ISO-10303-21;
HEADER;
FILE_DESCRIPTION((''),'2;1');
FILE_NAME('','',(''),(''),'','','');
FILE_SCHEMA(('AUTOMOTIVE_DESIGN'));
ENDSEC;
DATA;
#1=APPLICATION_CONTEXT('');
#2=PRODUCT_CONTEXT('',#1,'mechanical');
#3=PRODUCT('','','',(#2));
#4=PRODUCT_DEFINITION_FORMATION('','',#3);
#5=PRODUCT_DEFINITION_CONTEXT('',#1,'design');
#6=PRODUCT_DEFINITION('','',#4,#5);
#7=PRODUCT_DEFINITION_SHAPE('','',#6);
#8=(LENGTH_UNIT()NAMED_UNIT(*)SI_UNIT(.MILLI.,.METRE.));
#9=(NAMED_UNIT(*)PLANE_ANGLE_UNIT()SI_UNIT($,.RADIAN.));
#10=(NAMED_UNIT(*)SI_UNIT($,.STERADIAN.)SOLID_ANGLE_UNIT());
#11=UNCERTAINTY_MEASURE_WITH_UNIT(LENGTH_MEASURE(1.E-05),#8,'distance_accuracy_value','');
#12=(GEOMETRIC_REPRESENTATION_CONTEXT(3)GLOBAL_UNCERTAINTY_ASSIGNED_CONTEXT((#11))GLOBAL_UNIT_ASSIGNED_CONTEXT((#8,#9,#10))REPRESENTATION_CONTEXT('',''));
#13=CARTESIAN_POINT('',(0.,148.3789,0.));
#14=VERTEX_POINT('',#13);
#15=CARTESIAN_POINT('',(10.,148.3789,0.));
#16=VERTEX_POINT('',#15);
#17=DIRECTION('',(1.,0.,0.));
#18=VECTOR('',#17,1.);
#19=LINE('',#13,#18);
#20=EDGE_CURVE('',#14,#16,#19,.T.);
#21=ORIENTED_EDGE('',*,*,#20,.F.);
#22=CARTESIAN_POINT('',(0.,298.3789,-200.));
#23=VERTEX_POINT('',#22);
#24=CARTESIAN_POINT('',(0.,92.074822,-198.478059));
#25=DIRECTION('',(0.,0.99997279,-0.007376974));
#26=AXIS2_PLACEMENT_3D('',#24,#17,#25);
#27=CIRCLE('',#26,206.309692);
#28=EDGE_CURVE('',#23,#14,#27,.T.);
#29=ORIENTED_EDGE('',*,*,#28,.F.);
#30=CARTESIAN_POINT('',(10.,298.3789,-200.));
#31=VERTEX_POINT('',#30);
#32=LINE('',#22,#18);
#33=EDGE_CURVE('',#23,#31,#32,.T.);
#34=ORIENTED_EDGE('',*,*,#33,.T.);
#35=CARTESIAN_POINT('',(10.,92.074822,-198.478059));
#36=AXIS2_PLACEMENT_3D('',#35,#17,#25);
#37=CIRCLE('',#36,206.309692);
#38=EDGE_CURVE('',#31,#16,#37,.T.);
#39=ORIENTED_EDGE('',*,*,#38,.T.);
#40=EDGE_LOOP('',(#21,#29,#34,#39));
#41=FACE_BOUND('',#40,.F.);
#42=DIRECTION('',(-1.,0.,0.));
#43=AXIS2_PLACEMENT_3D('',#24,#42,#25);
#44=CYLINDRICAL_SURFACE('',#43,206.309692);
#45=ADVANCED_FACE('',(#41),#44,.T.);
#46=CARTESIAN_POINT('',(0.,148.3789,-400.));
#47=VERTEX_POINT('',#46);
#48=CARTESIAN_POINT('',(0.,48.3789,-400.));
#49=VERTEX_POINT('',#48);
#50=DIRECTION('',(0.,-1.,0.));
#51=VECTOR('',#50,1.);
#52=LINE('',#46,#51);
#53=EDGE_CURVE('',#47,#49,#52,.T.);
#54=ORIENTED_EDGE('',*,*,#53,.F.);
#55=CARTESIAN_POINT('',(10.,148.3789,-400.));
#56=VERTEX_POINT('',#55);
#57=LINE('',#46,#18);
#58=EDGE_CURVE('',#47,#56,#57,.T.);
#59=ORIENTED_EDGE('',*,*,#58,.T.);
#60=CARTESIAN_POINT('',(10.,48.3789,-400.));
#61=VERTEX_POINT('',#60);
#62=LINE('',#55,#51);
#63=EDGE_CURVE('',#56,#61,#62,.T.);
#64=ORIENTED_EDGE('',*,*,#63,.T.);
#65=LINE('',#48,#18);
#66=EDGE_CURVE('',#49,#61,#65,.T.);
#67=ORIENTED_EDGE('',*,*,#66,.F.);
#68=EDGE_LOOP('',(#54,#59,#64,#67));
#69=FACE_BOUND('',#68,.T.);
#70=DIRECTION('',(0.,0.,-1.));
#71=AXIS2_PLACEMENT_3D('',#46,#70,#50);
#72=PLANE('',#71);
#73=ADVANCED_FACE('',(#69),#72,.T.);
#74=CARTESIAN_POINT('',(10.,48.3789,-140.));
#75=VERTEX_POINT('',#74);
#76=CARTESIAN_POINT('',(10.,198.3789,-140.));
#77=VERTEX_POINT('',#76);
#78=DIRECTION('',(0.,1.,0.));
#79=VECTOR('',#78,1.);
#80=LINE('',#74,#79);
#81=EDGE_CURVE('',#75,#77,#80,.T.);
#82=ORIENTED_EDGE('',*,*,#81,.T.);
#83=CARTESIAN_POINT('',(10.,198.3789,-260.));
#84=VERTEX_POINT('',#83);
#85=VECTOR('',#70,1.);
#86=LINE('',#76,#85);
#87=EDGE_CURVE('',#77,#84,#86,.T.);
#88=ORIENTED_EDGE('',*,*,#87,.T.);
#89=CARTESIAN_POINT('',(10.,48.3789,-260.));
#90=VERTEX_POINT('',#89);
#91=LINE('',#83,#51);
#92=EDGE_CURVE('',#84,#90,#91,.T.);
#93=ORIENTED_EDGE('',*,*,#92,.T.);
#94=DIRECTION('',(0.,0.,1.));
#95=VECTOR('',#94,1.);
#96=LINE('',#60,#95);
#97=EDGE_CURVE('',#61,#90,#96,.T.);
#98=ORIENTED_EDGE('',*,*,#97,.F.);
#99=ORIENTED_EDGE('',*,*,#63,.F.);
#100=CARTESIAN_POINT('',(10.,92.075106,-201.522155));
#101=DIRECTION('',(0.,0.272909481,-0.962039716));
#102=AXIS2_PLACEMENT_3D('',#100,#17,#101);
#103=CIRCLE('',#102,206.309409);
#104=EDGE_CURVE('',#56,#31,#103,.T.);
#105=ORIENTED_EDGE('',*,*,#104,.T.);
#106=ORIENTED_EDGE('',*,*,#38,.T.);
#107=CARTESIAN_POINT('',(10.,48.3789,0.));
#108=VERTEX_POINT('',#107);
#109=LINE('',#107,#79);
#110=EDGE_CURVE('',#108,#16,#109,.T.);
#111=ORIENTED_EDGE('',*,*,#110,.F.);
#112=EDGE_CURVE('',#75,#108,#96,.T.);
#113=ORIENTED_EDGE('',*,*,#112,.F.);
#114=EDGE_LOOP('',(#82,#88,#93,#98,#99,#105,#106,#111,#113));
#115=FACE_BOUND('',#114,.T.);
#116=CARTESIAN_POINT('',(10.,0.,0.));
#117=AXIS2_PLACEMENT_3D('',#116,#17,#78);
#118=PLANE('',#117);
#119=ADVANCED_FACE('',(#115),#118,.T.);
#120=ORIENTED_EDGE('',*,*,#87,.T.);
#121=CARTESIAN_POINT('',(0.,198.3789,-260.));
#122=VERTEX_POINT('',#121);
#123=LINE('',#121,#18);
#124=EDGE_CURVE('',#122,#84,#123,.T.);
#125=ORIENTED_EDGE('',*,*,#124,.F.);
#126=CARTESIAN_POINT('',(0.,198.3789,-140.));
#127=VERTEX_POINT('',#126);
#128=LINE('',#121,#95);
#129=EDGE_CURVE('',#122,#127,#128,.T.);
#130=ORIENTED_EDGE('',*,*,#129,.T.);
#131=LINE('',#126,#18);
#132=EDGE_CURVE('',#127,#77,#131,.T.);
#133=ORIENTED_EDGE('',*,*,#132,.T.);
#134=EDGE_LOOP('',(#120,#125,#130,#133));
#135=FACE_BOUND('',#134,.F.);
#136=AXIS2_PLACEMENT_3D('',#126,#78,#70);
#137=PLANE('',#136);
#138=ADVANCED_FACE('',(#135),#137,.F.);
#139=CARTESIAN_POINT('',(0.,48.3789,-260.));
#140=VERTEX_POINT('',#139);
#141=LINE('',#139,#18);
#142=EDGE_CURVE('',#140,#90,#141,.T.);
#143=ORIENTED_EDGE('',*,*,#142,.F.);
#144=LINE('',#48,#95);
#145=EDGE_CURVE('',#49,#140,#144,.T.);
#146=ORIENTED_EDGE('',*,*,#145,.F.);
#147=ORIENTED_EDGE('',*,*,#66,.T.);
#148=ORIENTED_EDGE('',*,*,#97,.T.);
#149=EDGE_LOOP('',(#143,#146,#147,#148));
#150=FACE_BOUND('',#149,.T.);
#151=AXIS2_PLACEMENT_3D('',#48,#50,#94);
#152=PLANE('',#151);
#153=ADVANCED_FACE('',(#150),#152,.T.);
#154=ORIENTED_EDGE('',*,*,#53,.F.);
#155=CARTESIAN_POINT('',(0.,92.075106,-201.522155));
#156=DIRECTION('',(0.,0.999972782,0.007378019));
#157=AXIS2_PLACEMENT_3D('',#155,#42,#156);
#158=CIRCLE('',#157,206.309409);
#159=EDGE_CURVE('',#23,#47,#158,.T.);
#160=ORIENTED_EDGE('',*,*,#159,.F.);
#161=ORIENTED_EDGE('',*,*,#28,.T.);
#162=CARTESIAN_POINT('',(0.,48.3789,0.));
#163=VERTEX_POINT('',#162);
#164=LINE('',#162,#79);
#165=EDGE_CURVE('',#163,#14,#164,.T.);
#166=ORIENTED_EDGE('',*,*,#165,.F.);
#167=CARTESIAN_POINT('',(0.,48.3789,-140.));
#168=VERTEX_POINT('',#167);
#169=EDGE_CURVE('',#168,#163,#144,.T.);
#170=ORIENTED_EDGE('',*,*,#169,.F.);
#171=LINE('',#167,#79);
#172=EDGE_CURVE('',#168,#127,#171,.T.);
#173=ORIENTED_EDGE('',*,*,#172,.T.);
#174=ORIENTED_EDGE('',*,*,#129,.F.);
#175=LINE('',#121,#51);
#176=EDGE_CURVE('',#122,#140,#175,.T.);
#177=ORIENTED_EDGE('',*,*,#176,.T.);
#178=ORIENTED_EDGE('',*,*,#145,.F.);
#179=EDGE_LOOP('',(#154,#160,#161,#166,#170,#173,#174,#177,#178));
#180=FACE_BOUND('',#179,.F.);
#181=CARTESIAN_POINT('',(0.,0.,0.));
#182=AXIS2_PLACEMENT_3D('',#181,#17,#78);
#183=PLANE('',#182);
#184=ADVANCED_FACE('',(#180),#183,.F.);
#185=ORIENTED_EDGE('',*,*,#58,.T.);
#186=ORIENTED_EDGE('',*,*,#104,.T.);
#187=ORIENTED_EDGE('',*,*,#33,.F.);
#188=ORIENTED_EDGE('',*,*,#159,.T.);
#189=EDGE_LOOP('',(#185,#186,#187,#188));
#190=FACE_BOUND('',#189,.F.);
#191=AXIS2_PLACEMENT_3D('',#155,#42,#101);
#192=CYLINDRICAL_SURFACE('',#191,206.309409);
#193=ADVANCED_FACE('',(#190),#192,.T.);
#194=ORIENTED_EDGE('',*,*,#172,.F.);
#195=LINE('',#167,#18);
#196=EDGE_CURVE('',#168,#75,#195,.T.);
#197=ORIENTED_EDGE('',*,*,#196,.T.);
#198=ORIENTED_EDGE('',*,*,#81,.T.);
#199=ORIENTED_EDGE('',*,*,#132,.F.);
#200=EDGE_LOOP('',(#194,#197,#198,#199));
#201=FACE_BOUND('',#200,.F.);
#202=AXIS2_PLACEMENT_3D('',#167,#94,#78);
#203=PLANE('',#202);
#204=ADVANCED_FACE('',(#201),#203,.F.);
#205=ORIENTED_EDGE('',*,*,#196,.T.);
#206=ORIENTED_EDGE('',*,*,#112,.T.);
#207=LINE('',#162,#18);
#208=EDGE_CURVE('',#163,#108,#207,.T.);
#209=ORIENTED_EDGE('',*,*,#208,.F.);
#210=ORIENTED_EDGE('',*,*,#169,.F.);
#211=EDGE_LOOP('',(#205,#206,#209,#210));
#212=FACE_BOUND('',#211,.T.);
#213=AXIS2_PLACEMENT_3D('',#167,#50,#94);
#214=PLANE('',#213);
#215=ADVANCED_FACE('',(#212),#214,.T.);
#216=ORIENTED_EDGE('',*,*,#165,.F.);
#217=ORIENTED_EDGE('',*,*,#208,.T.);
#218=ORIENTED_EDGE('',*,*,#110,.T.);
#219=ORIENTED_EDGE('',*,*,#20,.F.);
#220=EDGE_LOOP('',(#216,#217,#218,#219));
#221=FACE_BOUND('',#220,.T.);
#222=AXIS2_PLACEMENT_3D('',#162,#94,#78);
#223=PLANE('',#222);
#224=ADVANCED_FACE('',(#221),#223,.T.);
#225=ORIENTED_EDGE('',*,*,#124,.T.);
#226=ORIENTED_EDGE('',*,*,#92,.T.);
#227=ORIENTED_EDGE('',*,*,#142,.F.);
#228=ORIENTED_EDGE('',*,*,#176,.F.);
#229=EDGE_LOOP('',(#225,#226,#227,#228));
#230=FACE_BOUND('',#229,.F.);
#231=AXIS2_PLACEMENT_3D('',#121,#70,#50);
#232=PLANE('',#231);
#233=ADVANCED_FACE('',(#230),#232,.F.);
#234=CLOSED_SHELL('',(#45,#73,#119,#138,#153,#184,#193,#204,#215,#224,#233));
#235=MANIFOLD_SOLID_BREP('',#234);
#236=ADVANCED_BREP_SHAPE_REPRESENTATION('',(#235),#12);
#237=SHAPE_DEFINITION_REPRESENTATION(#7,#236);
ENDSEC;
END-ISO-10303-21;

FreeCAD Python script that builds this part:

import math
import FreeCAD as App
import Part
import Sketcher
Q = App.Units.Quantity

doc = App.newDocument("Part")
body = doc.addObject("PartDesign::Body", "Body")

# Sketch on YZ plane
sketch1 = doc.addObject("Sketcher::SketchObject", "Sketch")
body.addObject(sketch1)
sketch1.AttachmentSupport = (doc.YZ_Plane, [""])
sketch1.MapMode = "FlatFace"
sketch1.addGeometry([
    Part.LineSegment(App.Vector(148.3789, 0, 0), App.Vector(48.3789, 0, 0)),  # 0
    Part.LineSegment(App.Vector(48.3789, 0, 0), App.Vector(48.3789, -140, 0)),  # 1
    Part.LineSegment(App.Vector(48.3789, -140, 0), App.Vector(198.3789, -140, 0)),  # 2
    Part.LineSegment(App.Vector(198.3789, -140, 0), App.Vector(198.3789, -260, 0)),  # 3
    Part.LineSegment(App.Vector(198.3789, -260, 0), App.Vector(48.3789, -260, 0)),  # 4
    Part.LineSegment(App.Vector(48.3789, -260, 0), App.Vector(48.3789, -400, 0)),  # 5
    Part.LineSegment(App.Vector(48.3789, -400, 0), App.Vector(148.3789, -400, 0)),  # 6
    Part.ArcOfCircle(Part.Circle(App.Vector(92.075, -201.522, 0), App.Vector(0, 0, 1), 206.309587), math.radians(-74.162512), math.radians(0.42269)),  # 7
    Part.ArcOfCircle(Part.Circle(App.Vector(92.075, -198.478, 0), App.Vector(0, 0, 1), 206.309514), math.radians(-0.42269), math.radians(74.162512)),  # 8
], False)
sketch1.addConstraint([
    Sketcher.Constraint("Coincident", 0, 2, 1, 1),
    Sketcher.Constraint("Coincident", 1, 2, 2, 1),
    Sketcher.Constraint("Coincident", 2, 2, 3, 1),
    Sketcher.Constraint("Coincident", 3, 2, 4, 1),
    Sketcher.Constraint("Coincident", 4, 2, 5, 1),
    Sketcher.Constraint("Coincident", 5, 2, 6, 1),
    Sketcher.Constraint("Coincident", 6, 2, 7, 1),
    Sketcher.Constraint("Coincident", 7, 2, 8, 1),
    Sketcher.Constraint("Coincident", 8, 2, 0, 1),
    Sketcher.Constraint("Horizontal", 0),
    Sketcher.Constraint("Vertical", 1),
    Sketcher.Constraint("Horizontal", 2),
    Sketcher.Constraint("Vertical", 3),
    Sketcher.Constraint("Horizontal", 4),
    Sketcher.Constraint("Vertical", 5),
    Sketcher.Constraint("Horizontal", 6),
    Sketcher.Constraint("Equal", 7, 8),
    Sketcher.Constraint("PointOnObject", 0, 2, -1),
    Sketcher.Constraint("Vertical", 7, 3, 8, 3),
    Sketcher.Constraint("Vertical", 1, 2, 4, 2),
    Sketcher.Constraint("Vertical", 6, 2, 8, 2),
    Sketcher.Constraint("Equal", 1, 5),
    Sketcher.Constraint("DistanceX", 0, 2, 0, 1, Q("3.937 in")),
    Sketcher.Constraint("DistanceX", 2, 1, 2, 2, Q("5.9055 in")),
    Sketcher.Constraint("DistanceY", 1, 2, 1, 1, Q("5.5118 in")),
    Sketcher.Constraint("DistanceY", 3, 2, 3, 1, Q("4.7244 in")),
    Sketcher.Constraint("DistanceX", 2, 2, 7, 2, Q("3.937 in")),
    Sketcher.Constraint("Radius", 7, 206.3096),
    Sketcher.Constraint("DistanceX", -1, 1, 7, 3, Q("3.625 in")),
])
pad1 = doc.addObject("PartDesign::Pad", "Pad")
body.addObject(pad1)
pad1.Profile = sketch1
pad1.Length = Q("0.3937008 in")

doc.recompute()
